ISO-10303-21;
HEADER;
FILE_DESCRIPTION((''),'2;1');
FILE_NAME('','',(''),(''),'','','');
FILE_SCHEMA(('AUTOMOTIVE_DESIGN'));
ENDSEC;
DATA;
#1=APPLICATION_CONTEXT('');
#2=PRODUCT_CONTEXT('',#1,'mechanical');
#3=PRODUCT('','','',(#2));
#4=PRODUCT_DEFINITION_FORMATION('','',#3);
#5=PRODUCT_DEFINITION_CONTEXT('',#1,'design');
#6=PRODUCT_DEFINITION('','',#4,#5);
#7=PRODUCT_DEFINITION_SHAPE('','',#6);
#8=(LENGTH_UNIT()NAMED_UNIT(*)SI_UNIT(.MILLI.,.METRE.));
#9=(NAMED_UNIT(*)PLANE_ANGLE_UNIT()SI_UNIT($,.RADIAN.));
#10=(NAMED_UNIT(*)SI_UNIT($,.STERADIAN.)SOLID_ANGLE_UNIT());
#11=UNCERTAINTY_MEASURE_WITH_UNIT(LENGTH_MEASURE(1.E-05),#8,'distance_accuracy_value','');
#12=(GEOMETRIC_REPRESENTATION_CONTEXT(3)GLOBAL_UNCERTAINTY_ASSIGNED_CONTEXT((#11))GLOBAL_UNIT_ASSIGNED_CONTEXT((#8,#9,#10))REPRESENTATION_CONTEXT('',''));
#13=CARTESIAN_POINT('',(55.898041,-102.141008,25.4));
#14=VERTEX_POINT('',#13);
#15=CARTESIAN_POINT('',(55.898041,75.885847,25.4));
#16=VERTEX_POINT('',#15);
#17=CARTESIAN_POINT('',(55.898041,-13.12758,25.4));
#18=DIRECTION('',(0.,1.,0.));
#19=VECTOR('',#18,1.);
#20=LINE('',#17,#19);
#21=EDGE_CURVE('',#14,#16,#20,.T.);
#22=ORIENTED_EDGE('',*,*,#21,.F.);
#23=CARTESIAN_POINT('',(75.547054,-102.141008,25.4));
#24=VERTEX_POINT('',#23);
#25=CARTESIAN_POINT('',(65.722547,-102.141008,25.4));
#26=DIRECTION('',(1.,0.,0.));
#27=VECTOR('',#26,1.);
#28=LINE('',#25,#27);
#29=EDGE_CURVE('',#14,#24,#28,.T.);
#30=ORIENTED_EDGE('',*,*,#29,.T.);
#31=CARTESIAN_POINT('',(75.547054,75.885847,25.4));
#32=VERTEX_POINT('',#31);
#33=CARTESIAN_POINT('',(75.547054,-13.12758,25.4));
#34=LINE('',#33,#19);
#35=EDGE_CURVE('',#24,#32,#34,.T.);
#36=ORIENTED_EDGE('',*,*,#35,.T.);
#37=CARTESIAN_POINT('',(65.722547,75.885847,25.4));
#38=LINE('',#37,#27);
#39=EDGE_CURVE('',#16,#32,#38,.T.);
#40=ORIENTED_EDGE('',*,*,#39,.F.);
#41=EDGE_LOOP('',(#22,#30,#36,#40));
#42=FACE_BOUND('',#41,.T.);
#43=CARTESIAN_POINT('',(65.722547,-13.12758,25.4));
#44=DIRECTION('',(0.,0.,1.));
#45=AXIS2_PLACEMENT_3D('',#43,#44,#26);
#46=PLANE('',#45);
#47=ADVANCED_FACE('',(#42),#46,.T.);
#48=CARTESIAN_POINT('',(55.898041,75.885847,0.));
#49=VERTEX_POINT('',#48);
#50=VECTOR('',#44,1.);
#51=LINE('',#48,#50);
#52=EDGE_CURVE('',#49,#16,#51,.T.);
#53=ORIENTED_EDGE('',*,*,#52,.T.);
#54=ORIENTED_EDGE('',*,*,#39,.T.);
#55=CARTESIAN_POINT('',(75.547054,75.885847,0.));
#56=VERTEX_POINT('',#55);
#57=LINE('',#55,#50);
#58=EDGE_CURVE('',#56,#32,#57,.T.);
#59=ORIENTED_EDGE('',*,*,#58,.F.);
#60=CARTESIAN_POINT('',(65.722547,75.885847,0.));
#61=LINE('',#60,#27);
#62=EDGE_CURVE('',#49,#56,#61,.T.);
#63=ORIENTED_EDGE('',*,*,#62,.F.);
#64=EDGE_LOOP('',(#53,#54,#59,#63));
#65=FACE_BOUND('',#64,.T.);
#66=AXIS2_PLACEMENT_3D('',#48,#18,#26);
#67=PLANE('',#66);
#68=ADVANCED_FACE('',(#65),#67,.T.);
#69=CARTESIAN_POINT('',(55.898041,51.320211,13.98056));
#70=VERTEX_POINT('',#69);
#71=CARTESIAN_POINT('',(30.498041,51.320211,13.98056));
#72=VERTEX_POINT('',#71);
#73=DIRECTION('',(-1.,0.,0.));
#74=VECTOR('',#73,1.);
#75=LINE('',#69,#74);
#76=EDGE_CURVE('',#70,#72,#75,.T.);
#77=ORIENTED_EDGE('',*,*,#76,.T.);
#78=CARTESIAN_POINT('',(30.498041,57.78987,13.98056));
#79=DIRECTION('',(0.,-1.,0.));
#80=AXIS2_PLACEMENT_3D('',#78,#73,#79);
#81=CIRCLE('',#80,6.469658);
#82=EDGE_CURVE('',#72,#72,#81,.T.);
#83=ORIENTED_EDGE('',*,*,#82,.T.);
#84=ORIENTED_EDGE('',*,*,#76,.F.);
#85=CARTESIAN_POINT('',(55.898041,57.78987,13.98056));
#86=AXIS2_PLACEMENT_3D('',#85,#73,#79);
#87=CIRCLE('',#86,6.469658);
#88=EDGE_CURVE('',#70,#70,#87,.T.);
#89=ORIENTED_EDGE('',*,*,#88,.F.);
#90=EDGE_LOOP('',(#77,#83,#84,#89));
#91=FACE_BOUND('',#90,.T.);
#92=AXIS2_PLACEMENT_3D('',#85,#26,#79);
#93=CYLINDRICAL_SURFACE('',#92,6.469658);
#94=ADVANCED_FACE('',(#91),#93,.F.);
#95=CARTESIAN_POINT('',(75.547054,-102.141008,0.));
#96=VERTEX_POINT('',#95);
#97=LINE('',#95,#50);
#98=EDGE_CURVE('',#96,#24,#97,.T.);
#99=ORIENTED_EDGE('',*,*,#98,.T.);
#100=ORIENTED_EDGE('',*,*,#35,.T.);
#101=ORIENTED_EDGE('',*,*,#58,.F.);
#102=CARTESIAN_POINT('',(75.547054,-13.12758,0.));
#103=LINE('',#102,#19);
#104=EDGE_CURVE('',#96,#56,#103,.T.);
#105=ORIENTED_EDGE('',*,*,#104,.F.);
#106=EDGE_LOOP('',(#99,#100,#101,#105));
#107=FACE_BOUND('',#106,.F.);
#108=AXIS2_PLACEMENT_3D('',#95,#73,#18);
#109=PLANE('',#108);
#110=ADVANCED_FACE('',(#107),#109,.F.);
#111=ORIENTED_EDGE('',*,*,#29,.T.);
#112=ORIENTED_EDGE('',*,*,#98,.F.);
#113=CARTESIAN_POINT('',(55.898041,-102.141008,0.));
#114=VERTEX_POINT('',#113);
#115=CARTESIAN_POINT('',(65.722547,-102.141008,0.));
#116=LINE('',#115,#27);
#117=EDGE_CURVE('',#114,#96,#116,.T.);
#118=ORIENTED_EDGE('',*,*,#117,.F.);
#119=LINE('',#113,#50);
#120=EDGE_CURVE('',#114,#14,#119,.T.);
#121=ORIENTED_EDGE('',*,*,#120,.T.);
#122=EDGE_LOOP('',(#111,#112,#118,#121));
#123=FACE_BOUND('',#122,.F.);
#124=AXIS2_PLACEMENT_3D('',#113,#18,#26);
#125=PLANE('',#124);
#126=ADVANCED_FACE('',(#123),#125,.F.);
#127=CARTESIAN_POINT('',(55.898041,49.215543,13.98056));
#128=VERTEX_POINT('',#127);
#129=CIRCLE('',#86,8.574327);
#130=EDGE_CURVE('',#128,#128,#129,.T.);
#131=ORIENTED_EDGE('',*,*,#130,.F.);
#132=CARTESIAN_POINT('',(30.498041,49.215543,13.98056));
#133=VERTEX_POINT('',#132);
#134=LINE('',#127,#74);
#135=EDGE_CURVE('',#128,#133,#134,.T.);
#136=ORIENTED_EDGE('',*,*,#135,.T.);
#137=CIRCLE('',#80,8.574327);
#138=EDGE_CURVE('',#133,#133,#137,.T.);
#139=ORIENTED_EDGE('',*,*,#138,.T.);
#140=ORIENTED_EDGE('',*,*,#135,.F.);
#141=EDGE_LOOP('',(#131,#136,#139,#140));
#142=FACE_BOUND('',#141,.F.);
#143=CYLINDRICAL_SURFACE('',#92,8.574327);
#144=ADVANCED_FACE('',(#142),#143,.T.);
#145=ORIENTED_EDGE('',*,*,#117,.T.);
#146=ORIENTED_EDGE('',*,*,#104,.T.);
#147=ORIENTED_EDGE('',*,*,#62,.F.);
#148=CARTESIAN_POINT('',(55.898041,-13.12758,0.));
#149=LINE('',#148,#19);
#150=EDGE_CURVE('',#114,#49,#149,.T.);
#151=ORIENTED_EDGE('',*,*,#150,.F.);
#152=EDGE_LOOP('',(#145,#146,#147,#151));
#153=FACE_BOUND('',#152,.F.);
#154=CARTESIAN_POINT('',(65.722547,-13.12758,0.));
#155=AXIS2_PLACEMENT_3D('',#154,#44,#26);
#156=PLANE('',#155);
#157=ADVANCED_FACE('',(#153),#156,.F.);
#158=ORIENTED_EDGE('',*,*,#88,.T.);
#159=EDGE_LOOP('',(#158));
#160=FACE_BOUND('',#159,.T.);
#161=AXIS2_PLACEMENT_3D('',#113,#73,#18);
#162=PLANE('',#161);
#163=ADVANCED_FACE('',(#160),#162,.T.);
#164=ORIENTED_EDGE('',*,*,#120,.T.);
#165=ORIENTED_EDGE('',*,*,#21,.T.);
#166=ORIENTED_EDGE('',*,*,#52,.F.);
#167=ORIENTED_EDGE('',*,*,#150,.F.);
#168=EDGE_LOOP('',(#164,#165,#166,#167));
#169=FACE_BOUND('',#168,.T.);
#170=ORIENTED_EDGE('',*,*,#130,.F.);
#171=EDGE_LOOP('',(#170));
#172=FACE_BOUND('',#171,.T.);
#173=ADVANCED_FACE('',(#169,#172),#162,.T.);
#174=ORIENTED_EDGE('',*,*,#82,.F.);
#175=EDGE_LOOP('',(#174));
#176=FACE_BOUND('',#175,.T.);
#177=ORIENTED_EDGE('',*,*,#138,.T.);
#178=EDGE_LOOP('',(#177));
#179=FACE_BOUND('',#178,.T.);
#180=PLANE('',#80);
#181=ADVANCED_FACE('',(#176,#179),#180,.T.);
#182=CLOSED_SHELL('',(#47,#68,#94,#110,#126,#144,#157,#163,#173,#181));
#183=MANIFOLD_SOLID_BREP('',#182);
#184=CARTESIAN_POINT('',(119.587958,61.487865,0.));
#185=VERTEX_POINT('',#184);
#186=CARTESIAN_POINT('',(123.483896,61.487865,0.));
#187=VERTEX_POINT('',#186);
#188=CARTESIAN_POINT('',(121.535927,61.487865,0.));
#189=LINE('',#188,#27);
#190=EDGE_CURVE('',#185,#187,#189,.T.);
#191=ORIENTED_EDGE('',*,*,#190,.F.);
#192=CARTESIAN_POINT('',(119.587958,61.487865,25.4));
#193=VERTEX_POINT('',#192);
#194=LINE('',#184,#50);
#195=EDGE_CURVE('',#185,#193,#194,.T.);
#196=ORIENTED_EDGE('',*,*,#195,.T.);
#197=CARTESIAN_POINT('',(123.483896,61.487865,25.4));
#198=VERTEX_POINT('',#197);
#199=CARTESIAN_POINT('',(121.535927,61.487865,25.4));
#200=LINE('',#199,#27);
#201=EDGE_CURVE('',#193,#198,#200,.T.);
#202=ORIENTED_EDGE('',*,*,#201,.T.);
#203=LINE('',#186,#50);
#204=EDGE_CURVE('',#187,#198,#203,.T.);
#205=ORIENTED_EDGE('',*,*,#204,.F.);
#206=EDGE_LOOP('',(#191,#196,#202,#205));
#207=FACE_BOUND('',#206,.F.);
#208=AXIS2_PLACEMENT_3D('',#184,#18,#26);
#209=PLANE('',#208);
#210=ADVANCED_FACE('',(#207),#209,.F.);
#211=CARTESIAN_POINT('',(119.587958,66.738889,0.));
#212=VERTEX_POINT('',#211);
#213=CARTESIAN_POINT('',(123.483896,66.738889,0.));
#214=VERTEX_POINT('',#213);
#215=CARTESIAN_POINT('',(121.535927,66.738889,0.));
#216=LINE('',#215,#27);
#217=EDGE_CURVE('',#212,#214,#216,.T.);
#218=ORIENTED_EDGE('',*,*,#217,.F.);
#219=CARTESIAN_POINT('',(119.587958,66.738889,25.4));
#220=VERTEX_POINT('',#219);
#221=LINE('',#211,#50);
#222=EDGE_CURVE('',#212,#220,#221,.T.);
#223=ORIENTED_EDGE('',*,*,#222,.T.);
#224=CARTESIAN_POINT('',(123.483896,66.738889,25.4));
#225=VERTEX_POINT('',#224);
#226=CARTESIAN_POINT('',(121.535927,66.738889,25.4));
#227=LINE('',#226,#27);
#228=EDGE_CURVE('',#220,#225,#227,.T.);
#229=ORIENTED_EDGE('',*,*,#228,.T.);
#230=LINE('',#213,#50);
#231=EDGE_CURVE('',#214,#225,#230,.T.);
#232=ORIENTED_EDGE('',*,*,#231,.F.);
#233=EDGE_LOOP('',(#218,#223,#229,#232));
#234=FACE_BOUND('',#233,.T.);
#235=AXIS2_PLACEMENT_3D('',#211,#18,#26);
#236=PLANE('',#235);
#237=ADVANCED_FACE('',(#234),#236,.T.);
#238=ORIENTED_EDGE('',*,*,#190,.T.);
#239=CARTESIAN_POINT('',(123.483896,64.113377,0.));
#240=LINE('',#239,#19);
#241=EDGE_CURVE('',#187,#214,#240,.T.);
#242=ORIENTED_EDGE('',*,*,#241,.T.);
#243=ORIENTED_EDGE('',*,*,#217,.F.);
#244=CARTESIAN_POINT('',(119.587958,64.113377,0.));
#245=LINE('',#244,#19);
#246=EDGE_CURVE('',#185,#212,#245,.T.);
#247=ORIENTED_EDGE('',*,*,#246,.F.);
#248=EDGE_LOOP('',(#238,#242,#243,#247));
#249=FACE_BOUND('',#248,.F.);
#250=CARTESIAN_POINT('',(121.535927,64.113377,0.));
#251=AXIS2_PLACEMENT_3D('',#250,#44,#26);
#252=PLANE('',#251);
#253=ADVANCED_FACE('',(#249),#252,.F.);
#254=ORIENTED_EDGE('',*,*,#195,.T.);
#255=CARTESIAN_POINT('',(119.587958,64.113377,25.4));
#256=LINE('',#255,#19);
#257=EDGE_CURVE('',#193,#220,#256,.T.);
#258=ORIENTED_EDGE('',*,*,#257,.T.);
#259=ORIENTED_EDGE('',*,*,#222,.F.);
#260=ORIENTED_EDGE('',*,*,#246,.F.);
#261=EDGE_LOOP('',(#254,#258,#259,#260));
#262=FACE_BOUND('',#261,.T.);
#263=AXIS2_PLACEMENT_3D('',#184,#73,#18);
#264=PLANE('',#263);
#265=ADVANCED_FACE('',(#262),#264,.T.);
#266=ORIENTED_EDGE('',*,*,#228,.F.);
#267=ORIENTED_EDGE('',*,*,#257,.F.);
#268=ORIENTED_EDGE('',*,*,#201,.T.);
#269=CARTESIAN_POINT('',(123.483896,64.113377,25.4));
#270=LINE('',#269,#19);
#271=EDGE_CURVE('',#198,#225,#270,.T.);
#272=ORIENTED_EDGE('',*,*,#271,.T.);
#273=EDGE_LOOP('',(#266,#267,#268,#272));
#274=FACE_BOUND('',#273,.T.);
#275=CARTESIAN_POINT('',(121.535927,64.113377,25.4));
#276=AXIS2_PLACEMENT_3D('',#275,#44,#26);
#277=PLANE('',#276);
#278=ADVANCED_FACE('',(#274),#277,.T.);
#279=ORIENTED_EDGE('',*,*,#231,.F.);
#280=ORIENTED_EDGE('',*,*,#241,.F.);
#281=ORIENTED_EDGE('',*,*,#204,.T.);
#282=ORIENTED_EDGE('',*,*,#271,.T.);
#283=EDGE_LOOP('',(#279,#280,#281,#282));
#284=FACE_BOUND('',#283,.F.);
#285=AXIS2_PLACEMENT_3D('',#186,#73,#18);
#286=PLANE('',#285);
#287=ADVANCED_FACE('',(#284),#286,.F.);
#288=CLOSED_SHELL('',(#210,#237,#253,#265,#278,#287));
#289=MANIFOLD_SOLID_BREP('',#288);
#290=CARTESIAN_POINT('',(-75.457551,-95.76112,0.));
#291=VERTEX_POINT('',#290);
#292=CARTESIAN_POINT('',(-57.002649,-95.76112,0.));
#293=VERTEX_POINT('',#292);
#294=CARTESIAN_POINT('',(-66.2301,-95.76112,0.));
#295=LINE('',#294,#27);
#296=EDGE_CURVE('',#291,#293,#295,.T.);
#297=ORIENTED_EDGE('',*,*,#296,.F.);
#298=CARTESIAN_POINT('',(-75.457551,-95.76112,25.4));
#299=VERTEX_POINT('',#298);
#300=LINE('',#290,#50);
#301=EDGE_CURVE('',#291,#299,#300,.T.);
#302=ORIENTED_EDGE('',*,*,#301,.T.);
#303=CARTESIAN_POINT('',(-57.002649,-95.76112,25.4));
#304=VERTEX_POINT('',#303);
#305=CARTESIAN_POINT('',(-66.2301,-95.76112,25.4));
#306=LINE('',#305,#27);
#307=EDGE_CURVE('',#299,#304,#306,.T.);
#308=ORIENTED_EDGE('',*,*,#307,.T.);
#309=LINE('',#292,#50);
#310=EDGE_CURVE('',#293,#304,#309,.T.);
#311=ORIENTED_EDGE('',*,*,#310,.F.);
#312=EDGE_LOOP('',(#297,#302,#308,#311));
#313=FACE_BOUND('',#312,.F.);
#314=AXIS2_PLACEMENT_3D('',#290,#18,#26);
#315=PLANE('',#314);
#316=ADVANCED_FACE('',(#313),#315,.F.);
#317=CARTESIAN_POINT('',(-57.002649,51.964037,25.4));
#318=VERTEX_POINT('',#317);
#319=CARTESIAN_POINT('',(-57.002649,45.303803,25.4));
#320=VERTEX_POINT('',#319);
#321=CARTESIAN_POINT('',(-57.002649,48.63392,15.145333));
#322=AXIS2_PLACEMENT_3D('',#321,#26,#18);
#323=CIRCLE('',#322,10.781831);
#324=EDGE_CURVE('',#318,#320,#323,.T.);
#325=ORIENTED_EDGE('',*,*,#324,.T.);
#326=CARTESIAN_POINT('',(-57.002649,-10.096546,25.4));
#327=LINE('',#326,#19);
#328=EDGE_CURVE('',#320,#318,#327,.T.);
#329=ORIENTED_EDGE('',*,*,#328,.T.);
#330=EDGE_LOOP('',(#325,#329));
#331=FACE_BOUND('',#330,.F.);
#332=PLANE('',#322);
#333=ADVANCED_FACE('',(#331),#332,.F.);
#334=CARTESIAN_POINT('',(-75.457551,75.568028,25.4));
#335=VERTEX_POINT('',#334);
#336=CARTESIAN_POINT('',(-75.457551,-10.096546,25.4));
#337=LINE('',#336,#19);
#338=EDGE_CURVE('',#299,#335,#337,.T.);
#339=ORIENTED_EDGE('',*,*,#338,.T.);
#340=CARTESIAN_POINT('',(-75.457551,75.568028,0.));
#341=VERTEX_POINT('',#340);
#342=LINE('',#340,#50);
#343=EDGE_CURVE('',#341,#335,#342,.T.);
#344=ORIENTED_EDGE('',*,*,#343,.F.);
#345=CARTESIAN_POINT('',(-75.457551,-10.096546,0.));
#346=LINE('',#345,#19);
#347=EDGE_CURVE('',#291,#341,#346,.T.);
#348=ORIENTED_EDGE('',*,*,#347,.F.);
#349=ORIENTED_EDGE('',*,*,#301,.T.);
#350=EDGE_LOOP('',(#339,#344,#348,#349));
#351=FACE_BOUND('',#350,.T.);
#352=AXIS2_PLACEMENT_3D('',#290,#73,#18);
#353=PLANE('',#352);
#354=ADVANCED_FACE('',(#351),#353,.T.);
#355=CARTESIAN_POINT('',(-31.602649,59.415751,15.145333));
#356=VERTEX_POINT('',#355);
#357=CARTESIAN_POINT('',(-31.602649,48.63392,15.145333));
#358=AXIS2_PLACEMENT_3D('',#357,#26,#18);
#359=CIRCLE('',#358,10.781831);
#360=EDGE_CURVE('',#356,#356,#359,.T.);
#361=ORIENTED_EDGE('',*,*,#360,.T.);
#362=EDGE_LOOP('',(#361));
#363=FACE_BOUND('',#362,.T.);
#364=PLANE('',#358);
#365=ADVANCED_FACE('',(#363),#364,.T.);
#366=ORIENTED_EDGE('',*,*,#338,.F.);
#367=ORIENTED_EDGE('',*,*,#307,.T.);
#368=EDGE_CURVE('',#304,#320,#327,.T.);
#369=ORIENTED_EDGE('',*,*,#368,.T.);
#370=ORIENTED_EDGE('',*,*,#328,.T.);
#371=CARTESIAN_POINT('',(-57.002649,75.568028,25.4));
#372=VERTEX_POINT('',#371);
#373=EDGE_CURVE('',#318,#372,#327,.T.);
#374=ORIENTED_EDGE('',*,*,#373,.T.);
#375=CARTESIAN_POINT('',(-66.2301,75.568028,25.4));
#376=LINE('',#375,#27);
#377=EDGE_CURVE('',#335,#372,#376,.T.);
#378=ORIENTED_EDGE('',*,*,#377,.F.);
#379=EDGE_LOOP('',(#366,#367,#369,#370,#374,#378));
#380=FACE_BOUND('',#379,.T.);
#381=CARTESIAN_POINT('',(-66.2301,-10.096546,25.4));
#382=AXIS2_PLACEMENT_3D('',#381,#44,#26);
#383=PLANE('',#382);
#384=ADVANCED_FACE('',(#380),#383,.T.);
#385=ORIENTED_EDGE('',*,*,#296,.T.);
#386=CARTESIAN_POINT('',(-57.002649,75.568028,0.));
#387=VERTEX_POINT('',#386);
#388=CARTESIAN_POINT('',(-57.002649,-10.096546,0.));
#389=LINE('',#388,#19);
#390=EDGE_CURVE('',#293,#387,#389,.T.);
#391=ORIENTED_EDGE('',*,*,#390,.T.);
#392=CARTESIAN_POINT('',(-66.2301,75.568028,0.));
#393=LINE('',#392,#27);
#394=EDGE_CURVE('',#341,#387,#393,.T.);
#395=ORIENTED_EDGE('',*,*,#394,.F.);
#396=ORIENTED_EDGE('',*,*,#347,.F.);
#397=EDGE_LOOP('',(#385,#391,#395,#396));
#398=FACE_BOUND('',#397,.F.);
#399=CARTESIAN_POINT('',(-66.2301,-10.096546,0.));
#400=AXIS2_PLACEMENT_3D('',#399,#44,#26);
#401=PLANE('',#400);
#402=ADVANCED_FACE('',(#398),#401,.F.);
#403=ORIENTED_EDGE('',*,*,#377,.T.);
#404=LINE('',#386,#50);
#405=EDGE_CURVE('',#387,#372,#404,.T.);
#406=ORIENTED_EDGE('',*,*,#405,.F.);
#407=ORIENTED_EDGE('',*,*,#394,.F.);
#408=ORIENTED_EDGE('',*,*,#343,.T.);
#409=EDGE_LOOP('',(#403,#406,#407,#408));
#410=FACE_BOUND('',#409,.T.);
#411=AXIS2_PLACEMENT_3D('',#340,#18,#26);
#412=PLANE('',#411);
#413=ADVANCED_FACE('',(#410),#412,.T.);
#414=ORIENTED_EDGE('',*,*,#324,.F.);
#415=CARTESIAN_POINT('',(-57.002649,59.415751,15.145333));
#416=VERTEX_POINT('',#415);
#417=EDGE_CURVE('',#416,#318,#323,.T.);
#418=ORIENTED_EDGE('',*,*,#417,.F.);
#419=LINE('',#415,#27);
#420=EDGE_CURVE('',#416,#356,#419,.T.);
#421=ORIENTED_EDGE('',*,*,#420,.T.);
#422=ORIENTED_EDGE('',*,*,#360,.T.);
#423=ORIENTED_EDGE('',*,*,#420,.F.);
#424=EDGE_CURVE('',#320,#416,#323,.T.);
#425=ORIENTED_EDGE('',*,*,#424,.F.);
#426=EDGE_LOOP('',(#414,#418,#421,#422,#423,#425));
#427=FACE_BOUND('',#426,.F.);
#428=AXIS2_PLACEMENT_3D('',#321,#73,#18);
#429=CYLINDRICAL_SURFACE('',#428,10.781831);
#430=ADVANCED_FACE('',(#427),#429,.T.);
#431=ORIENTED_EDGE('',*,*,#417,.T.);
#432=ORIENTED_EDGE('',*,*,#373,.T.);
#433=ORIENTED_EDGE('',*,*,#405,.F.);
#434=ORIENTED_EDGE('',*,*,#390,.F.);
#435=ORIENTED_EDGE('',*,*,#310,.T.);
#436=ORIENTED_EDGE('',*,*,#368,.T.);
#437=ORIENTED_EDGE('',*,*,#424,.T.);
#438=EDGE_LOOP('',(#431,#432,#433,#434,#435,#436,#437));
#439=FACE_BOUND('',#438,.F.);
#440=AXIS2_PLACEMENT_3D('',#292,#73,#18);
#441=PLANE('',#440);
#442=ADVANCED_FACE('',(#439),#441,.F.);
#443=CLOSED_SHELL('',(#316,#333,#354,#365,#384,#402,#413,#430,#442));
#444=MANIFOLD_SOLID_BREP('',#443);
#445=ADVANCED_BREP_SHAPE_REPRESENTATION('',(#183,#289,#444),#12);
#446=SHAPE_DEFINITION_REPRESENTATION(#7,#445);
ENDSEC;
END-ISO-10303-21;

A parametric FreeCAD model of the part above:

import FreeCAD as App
import Part
import Sketcher

V = App.Vector
Q = App.Units.Quantity

doc = App.newDocument("Part")
body = doc.addObject("PartDesign::Body", "Body")

# Sketch on XY plane
sketch1 = body.newObject("Sketcher::SketchObject", "Sketch")
sketch1.AttachmentSupport = (doc.getObject("XY_Plane"), [""])
sketch1.MapMode = "FlatFace"
sketch1.addGeometry([
    Part.LineSegment(V(119.6, 66.7, 0), V(119.6, 61.5, 0)),
    Part.LineSegment(V(119.6, 61.5, 0), V(123.5, 61.5, 0)),
    Part.LineSegment(V(123.5, 61.5, 0), V(123.5, 66.7, 0)),
    Part.LineSegment(V(123.5, 66.7, 0), V(119.6, 66.7, 0)),
], False)
sketch1.addConstraint([
    Sketcher.Constraint("Coincident", 0, 2, 1, 1),
    Sketcher.Constraint("Coincident", 1, 2, 2, 1),
    Sketcher.Constraint("Coincident", 2, 2, 3, 1),
    Sketcher.Constraint("Coincident", 3, 2, 0, 1),
    Sketcher.Constraint("Vertical", 0),
    Sketcher.Constraint("Horizontal", 1),
    Sketcher.Constraint("Vertical", 2),
    Sketcher.Constraint("Horizontal", 3),
    Sketcher.Constraint("DistanceX", 1, 1, 1, 2, 3.895938),
    Sketcher.Constraint("DistanceY", 0, 2, 0, 1, 5.251024),
    Sketcher.Constraint("DistanceY", -1, 1, 2, 2, 66.738889),
    Sketcher.Constraint("DistanceX", -1, 1, 0, 2, 119.587958),
])
pad1 = body.newObject("PartDesign::Pad", "Pad")
pad1.Profile = sketch1
pad1.Length = Q("1 in")
body2 = doc.addObject("PartDesign::Body", "Body001")

# Sketch on XY plane
sketch2 = body2.newObject("Sketcher::SketchObject", "Sketch001")
sketch2.AttachmentSupport = (doc.getObject("XY_Plane001"), [""])
sketch2.MapMode = "FlatFace"
sketch2.addGeometry([
    Part.LineSegment(V(56, 76, 0), V(56, -102, 0)),
    Part.LineSegment(V(56, -102, 0), V(76, -102, 0)),
    Part.LineSegment(V(76, -102, 0), V(76, 76, 0)),
    Part.LineSegment(V(76, 76, 0), V(56, 76, 0)),
], False)
sketch2.addConstraint([
    Sketcher.Constraint("Coincident", 0, 2, 1, 1),
    Sketcher.Constraint("Coincident", 1, 2, 2, 1),
    Sketcher.Constraint("Coincident", 2, 2, 3, 1),
    Sketcher.Constraint("Coincident", 3, 2, 0, 1),
    Sketcher.Constraint("Vertical", 0),
    Sketcher.Constraint("Horizontal", 1),
    Sketcher.Constraint("Vertical", 2),
    Sketcher.Constraint("Horizontal", 3),
    Sketcher.Constraint("DistanceX", 1, 1, 1, 2, 19.649014),
    Sketcher.Constraint("DistanceY", 0, 2, 0, 1, 178.026855),
    Sketcher.Constraint("DistanceX", -1, 1, 0, 2, 55.898041),
    Sketcher.Constraint("DistanceY", 0, 2, -1, 1, 102.141008),
])
pad2 = body2.newObject("PartDesign::Pad", "Pad001")
pad2.Profile = sketch2
pad2.Length = Q("1 in")

# Sketch on YZ plane
sketch3 = body2.newObject("Sketcher::SketchObject", "Sketch002")
sketch3.AttachmentSupport = (doc.getObject("YZ_Plane001"), [""])
sketch3.MapMode = "FlatFace"
sketch3.AttachmentOffset = App.Placement(V(0, 0, 55.898041), App.Rotation())
sketch3.addGeometry([
    Part.Circle(V(58, 14, 0), V(0, 0, 1), 9),
    Part.Circle(V(58, 14, 0), V(0, 0, 1), 6),
], False)
sketch3.addConstraint([
    Sketcher.Constraint("Coincident", 1, 3, 0, 3),
    Sketcher.Constraint("Diameter", 0, 17.148654),
    Sketcher.Constraint("Diameter", 1, 12.939317),
    Sketcher.Constraint("DistanceX", -1, 1, 0, 3, 57.78987),
    Sketcher.Constraint("DistanceY", -1, 1, 0, 3, 13.98056),
])
pad3 = body2.newObject("PartDesign::Pad", "Pad002")
pad3.Profile = sketch3
pad3.Length = Q("1 in")
pad3.Reversed = True
body3 = doc.addObject("PartDesign::Body", "Body002")

# Sketch on XY plane
sketch4 = body3.newObject("Sketcher::SketchObject", "Sketch003")
sketch4.AttachmentSupport = (doc.getObject("XY_Plane002"), [""])
sketch4.MapMode = "FlatFace"
sketch4.addGeometry([
    Part.LineSegment(V(-75, 76, 0), V(-75, -96, 0)),
    Part.LineSegment(V(-75, -96, 0), V(-57, -96, 0)),
    Part.LineSegment(V(-57, -96, 0), V(-57, 76, 0)),
    Part.LineSegment(V(-57, 76, 0), V(-75, 76, 0)),
], False)
sketch4.addConstraint([
    Sketcher.Constraint("Coincident", 0, 2, 1, 1),
    Sketcher.Constraint("Coincident", 1, 2, 2, 1),
    Sketcher.Constraint("Coincident", 2, 2, 3, 1),
    Sketcher.Constraint("Coincident", 3, 2, 0, 1),
    Sketcher.Constraint("Vertical", 0),
    Sketcher.Constraint("Horizontal", 1),
    Sketcher.Constraint("Vertical", 2),
    Sketcher.Constraint("Horizontal", 3),
    Sketcher.Constraint("DistanceX", 1, 1, 1, 2, 18.454902),
    Sketcher.Constraint("DistanceY", 0, 2, 0, 1, 171.329148),
    Sketcher.Constraint("DistanceX", 0, 2, -1, 1, 75.457551),
    Sketcher.Constraint("DistanceY", 0, 2, -1, 1, 95.76112),
])
pad4 = body3.newObject("PartDesign::Pad", "Pad003")
pad4.Profile = sketch4
pad4.Length = Q("1 in")

# Sketch on YZ plane
sketch5 = body3.newObject("Sketcher::SketchObject", "Sketch004")
sketch5.AttachmentSupport = (doc.getObject("YZ_Plane002"), [""])
sketch5.MapMode = "FlatFace"
sketch5.AttachmentOffset = App.Placement(V(0, 0, -57.002649), App.Rotation())
sketch5.addGeometry(Part.Circle(V(49, 15, 0), V(0, 0, 1), 11), False)
sketch5.addConstraint([
    Sketcher.Constraint("Diameter", 0, 21.563662),
    Sketcher.Constraint("DistanceX", -1, 1, 0, 3, 48.63392),
    Sketcher.Constraint("DistanceY", -1, 1, 0, 3, 15.145333),
])
pad5 = body3.newObject("PartDesign::Pad", "Pad004")
pad5.Profile = sketch5
pad5.Length = Q("1 in")

doc.recompute()
